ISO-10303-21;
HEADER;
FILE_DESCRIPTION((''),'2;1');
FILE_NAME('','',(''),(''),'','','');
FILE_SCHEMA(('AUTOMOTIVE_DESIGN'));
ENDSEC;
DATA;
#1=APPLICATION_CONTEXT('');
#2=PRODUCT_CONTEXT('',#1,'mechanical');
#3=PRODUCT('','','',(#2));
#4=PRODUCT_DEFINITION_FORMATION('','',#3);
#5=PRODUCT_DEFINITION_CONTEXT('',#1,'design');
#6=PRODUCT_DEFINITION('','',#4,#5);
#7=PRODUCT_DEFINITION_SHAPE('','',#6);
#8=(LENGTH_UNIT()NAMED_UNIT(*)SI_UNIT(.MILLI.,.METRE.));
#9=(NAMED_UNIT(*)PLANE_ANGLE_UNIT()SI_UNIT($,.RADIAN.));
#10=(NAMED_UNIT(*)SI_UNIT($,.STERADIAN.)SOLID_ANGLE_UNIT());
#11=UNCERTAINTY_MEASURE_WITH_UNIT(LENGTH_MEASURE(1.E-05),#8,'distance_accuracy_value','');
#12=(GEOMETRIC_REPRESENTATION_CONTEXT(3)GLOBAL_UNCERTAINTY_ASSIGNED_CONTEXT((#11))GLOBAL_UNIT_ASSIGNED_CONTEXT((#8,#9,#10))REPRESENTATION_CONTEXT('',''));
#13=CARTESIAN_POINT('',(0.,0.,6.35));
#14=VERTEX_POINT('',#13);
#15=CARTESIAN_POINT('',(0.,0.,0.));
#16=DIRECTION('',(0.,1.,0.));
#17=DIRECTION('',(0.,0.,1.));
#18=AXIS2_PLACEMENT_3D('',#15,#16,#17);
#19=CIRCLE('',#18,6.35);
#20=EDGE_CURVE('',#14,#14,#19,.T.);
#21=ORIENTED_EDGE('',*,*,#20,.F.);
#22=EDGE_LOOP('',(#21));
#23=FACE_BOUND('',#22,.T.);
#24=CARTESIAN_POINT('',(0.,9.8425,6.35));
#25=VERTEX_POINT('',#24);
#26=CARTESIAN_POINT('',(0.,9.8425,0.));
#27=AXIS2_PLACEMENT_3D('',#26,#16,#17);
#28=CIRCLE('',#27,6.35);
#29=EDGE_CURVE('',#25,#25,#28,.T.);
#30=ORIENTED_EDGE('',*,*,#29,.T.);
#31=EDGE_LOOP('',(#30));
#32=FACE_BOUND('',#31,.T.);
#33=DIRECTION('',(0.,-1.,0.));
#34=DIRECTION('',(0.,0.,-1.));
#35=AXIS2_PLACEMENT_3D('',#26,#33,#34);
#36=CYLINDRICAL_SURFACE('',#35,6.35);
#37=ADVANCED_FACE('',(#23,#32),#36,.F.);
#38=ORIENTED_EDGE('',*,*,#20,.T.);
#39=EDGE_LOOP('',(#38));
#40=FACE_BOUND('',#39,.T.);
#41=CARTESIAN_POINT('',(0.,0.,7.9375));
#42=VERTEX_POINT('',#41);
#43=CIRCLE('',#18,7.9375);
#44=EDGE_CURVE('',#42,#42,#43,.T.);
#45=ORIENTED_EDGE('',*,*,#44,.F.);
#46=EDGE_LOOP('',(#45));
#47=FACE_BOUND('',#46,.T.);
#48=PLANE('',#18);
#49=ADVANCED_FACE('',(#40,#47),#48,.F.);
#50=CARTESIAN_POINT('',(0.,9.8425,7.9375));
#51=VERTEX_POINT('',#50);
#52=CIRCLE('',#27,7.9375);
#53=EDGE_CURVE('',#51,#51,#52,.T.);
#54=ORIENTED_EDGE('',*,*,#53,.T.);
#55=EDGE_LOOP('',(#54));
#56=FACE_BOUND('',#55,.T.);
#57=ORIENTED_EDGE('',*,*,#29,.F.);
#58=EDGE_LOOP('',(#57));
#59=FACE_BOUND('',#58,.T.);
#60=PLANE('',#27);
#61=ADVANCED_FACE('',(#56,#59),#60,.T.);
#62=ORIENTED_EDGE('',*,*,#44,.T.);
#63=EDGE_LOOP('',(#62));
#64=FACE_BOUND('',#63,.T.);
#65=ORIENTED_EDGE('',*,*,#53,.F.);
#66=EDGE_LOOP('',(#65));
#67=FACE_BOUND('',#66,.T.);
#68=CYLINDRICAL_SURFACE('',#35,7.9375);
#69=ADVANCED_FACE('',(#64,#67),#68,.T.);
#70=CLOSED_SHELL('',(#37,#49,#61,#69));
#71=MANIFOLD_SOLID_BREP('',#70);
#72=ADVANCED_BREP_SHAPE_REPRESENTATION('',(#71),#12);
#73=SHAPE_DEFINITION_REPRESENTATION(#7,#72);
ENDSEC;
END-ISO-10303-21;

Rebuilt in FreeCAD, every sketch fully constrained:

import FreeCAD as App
import Part
import Sketcher

V = App.Vector
Q = App.Units.Quantity

doc = App.newDocument("Part")
body = doc.addObject("PartDesign::Body", "Body")

# Sketch on XZ plane
sketch1 = body.newObject("Sketcher::SketchObject", "Sketch")
sketch1.AttachmentSupport = (doc.getObject("XZ_Plane"), [""])
sketch1.MapMode = "FlatFace"
sketch1.addGeometry([
    Part.Circle(V(0, 0, 0), V(0, 0, 1), 8),
    Part.Circle(V(0, 0, 0), V(0, 0, 1), 6),
], False)
sketch1.addConstraint([
    Sketcher.Constraint("Coincident", 0, 3, -1, 1),
    Sketcher.Constraint("Coincident", 1, 3, -1, 1),
    Sketcher.Constraint("Diameter", 1, Q("0.5 in")),
    Sketcher.Constraint("Diameter", 0, Q("0.625 in")),
])
pad1 = body.newObject("PartDesign::Pad", "Pad")
pad1.Profile = sketch1
pad1.Length = Q("0.3875 in")
pad1.Reversed = True

doc.recompute()
